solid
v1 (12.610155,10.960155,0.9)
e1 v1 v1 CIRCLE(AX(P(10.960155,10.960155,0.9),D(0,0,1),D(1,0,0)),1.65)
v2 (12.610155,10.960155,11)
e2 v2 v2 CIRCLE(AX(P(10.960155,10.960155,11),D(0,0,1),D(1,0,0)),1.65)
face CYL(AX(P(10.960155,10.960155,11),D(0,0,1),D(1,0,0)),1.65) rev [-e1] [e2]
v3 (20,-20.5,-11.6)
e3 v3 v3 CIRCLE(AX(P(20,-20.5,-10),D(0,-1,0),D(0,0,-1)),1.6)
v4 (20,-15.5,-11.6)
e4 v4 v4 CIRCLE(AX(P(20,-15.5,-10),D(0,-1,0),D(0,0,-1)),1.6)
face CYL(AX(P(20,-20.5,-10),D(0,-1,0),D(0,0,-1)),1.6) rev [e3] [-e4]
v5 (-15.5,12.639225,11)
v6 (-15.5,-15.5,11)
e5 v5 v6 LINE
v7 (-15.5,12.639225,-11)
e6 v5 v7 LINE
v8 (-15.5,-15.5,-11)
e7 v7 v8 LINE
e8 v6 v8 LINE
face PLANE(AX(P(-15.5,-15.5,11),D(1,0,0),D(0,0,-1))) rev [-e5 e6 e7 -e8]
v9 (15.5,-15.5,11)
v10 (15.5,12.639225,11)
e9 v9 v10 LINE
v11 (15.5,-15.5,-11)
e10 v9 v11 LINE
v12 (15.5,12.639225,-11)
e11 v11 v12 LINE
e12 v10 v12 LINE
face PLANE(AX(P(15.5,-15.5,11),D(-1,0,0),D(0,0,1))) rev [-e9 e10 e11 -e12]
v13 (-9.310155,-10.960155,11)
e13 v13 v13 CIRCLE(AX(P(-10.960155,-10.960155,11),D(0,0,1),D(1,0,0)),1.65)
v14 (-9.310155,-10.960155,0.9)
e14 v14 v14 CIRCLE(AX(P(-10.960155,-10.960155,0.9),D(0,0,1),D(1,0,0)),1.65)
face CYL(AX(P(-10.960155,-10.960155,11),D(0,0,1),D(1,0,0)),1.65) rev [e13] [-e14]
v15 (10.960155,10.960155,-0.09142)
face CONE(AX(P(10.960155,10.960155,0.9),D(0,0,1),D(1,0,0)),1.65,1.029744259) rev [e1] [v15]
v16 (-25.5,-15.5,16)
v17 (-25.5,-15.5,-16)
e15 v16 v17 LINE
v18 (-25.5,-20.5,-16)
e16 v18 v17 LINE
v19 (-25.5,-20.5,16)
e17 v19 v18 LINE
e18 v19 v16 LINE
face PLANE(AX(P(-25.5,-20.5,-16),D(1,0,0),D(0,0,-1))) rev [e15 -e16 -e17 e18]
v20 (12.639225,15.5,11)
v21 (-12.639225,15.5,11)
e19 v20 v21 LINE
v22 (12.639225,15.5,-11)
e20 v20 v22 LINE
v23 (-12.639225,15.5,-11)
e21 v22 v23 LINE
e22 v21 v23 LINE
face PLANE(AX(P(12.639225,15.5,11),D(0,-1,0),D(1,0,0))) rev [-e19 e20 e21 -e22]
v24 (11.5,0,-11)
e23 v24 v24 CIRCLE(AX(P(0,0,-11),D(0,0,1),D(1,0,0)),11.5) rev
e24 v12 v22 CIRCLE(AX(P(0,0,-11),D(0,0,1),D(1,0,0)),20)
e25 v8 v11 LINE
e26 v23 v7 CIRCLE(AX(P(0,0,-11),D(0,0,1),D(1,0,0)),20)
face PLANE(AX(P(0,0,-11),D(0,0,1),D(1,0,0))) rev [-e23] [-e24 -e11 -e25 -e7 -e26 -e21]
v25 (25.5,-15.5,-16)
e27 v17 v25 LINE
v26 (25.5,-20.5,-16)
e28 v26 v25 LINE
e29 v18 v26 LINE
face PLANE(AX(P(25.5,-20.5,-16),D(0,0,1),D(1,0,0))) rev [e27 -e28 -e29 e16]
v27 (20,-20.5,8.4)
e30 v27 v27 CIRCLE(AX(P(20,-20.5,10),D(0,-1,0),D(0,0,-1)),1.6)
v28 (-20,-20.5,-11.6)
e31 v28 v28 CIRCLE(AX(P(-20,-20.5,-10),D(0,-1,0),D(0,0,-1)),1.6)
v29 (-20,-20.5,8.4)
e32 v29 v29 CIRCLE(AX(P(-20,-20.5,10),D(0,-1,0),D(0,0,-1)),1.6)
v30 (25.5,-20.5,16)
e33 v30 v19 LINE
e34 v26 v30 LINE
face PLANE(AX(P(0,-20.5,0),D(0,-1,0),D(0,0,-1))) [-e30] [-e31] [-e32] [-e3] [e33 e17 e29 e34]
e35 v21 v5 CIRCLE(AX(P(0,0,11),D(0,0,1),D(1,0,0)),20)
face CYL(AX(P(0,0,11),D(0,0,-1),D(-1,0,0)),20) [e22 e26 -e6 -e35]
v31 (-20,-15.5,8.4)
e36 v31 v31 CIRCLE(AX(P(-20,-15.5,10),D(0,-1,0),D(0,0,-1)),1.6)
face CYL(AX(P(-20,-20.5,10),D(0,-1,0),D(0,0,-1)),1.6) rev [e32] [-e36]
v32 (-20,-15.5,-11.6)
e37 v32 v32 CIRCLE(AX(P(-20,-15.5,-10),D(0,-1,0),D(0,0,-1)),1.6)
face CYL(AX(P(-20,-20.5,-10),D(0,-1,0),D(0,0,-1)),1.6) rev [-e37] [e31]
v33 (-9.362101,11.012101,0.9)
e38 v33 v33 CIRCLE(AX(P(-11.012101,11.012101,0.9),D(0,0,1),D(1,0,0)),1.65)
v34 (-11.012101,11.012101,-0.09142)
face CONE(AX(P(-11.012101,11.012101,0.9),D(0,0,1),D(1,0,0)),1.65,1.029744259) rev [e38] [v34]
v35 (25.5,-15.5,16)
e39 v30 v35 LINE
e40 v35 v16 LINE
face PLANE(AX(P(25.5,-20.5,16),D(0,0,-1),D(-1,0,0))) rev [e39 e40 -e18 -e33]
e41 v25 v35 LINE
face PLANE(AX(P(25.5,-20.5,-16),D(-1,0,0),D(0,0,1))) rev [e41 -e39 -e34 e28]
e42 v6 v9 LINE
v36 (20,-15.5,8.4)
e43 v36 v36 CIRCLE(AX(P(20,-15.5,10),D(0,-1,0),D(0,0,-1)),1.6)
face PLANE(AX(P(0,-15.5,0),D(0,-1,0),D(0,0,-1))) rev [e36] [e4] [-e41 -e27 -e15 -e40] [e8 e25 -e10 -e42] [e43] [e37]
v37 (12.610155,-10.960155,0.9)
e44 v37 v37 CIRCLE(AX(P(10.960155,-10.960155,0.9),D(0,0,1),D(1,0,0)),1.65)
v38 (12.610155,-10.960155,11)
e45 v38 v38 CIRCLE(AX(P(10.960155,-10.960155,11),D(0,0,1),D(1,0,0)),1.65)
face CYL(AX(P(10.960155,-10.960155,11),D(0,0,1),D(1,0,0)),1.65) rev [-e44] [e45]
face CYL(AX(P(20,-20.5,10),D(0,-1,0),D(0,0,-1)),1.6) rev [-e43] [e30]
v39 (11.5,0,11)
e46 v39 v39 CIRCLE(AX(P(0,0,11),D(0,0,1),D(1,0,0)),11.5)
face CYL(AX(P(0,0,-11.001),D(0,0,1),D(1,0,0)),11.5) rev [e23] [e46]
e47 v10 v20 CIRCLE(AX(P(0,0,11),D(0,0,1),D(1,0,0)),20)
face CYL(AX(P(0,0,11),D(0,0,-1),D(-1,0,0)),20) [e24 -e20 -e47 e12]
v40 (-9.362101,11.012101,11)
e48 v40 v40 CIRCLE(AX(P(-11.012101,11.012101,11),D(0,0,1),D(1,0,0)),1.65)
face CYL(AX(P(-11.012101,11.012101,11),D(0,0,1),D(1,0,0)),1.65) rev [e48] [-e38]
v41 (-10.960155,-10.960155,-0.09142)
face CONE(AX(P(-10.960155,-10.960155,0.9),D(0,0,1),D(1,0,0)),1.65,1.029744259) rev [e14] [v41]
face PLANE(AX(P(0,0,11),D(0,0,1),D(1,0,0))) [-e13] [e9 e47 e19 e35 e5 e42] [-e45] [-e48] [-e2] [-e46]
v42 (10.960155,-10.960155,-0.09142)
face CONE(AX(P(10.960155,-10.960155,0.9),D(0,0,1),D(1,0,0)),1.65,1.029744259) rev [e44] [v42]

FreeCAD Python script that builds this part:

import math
import FreeCAD as App
import Part
import Sketcher
from FreeCAD import Vector

doc = App.newDocument("Part")
body = doc.addObject("PartDesign::Body", "Body")

sketch1 = body.newObject("Sketcher::SketchObject", "Sketch")
sketch1.AttachmentSupport = (doc.getObject("XY_Plane"), [""])
sketch1.MapMode = "FlatFace"
sketch1.addGeometry(Part.LineSegment(Vector(-15.5, -15.5, 0), Vector(15.5, -15.5, 0)), False)
sketch1.addGeometry(Part.LineSegment(Vector(15.5, -15.5, 0), Vector(15.5, 12.6, 0)), False)
sketch1.addGeometry(Part.ArcOfCircle(Part.Circle(Vector(0, 0, 0), Vector(0, 0, 1), 20), math.radians(39.19), math.radians(50.81)), False)
sketch1.addGeometry(Part.LineSegment(Vector(12.6, 15.5, 0), Vector(-12.6, 15.5, 0)), False)
sketch1.addGeometry(Part.ArcOfCircle(Part.Circle(Vector(0, 0, 0), Vector(0, 0, 1), 20), math.radians(129.19), math.radians(140.81)), False)
sketch1.addGeometry(Part.LineSegment(Vector(-15.5, 12.6, 0), Vector(-15.5, -15.5, 0)), False)
sketch1.addConstraint(Sketcher.Constraint("Coincident", 0, 2, 1, 1))
sketch1.addConstraint(Sketcher.Constraint("Coincident", 1, 2, 2, 1))
sketch1.addConstraint(Sketcher.Constraint("Coincident", 2, 2, 3, 1))
sketch1.addConstraint(Sketcher.Constraint("Coincident", 3, 2, 4, 1))
sketch1.addConstraint(Sketcher.Constraint("Coincident", 4, 2, 5, 1))
sketch1.addConstraint(Sketcher.Constraint("Coincident", 5, 2, 0, 1))
sketch1.addConstraint(Sketcher.Constraint("Horizontal", 0))
sketch1.addConstraint(Sketcher.Constraint("Vertical", 1))
sketch1.addConstraint(Sketcher.Constraint("Horizontal", 3))
sketch1.addConstraint(Sketcher.Constraint("Vertical", 5))
sketch1.addConstraint(Sketcher.Constraint("Coincident", 2, 3, -1, 1))
sketch1.addConstraint(Sketcher.Constraint("Coincident", 4, 3, -1, 1))
sketch1.addConstraint(Sketcher.Constraint("Equal", 2, 4))
sketch1.addConstraint(Sketcher.Constraint("Horizontal", 1, 2, 4, 2))
sketch1.addConstraint(Sketcher.Constraint("Radius", 2, 20.0))
sketch1.addConstraint(Sketcher.Constraint("DistanceX", 0, 1, 0, 2, 31.0))
sketch1.addConstraint(Sketcher.Constraint("DistanceY", 0, 2, 2, 2, 31.0))
sketch1.addConstraint(Sketcher.Constraint("DistanceY", 0, 2, -1, 1, 15.5))
pad1 = body.newObject("PartDesign::Pad", "Pad")
pad1.Profile = sketch1
pad1.Length = 22
pad1.Midplane = True

sketch2 = body.newObject("Sketcher::SketchObject", "Sketch001")
sketch2.AttachmentSupport = (doc.getObject("XY_Plane"), [""])
sketch2.MapMode = "FlatFace"
sketch2.AttachmentOffset = App.Placement(Vector(0, 0, 11), App.Rotation())
sketch2.addGeometry(Part.Circle(Vector(0, 0, 0), Vector(0, 0, 1), 12), False)
sketch2.addConstraint(Sketcher.Constraint("Coincident", 0, 3, -1, 1))
sketch2.addConstraint(Sketcher.Constraint("Diameter", 0, 23.0))
pocket1 = body.newObject("PartDesign::Pocket", "Pocket")
pocket1.Profile = sketch2
pocket1.Type = "UpToFirst"

sketch3 = body.newObject("Sketcher::SketchObject", "Sketch002")
sketch3.AttachmentSupport = (doc.getObject("XY_Plane"), [""])
sketch3.MapMode = "FlatFace"
sketch3.AttachmentOffset = App.Placement(Vector(0, 0, 11), App.Rotation())
sketch3.addGeometry(Part.Circle(Vector(-11, 11, 0), Vector(0, 0, 1), 1.6), False)
sketch3.addGeometry(Part.Circle(Vector(11, 11, 0), Vector(0, 0, 1), 1.6), False)
sketch3.addGeometry(Part.Circle(Vector(11, -11, 0), Vector(0, 0, 1), 1.6), False)
sketch3.addGeometry(Part.Circle(Vector(-11, -11, 0), Vector(0, 0, 1), 1.6), False)
sketch3.addConstraint(Sketcher.Constraint("Equal", 0, 1))
sketch3.addConstraint(Sketcher.Constraint("Equal", 1, 2))
sketch3.addConstraint(Sketcher.Constraint("Equal", 2, 3))
sketch3.addConstraint(Sketcher.Constraint("Symmetric", 1, 3, 3, 3, -1, 1))
sketch3.addConstraint(Sketcher.Constraint("Symmetric", 2, 3, 3, 3, -2))
sketch3.addConstraint(Sketcher.Constraint("Diameter", 0, 3.3))
sketch3.addConstraint(Sketcher.Constraint("DistanceX", 0, 3, -1, 1, 11.012101))
sketch3.addConstraint(Sketcher.Constraint("DistanceY", -1, 1, 0, 3, 11.012101))
sketch3.addConstraint(Sketcher.Constraint("DistanceY", 2, 3, 1, 3, 21.92031))
sketch3.addConstraint(Sketcher.Constraint("DistanceX", 3, 3, 2, 3, 21.92031))
doc.recompute()
hole = body.newObject("PartDesign::Hole", "Hole")
hole.Profile = sketch3
hole.ThreadType = "None"
hole.Diameter = 3.3
hole.DepthType = "Dimension"
hole.Depth = 10.1
hole.DrillPoint = "Angled"
hole.DrillPointAngle = 118

sketch4 = body.newObject("Sketcher::SketchObject", "Sketch003")
sketch4.AttachmentSupport = (doc.getObject("XZ_Plane"), [""])
sketch4.MapMode = "FlatFace"
sketch4.AttachmentOffset = App.Placement(Vector(0, 0, 15.5), App.Rotation())
sketch4.addGeometry(Part.LineSegment(Vector(-26, 16, 0), Vector(-26, -16, 0)), False)
sketch4.addGeometry(Part.LineSegment(Vector(-26, -16, 0), Vector(26, -16, 0)), False)
sketch4.addGeometry(Part.LineSegment(Vector(26, -16, 0), Vector(26, 16, 0)), False)
sketch4.addGeometry(Part.LineSegment(Vector(26, 16, 0), Vector(-26, 16, 0)), False)
sketch4.addConstraint(Sketcher.Constraint("Coincident", 0, 2, 1, 1))
sketch4.addConstraint(Sketcher.Constraint("Coincident", 1, 2, 2, 1))
sketch4.addConstraint(Sketcher.Constraint("Coincident", 2, 2, 3, 1))
sketch4.addConstraint(Sketcher.Constraint("Coincident", 3, 2, 0, 1))
sketch4.addConstraint(Sketcher.Constraint("Vertical", 0))
sketch4.addConstraint(Sketcher.Constraint("Horizontal", 1))
sketch4.addConstraint(Sketcher.Constraint("Vertical", 2))
sketch4.addConstraint(Sketcher.Constraint("Horizontal", 3))
sketch4.addConstraint(Sketcher.Constraint("Symmetric", 0, 2, 2, 2, -1, 1))
sketch4.addConstraint(Sketcher.Constraint("DistanceX", 1, 1, 1, 2, 51.0))
sketch4.addConstraint(Sketcher.Constraint("DistanceY", 0, 2, 0, 1, 32.0))
pad2 = body.newObject("PartDesign::Pad", "Pad001")
pad2.Profile = sketch4
pad2.Length = 5

sketch5 = body.newObject("Sketcher::SketchObject", "Sketch004")
sketch5.AttachmentSupport = (doc.getObject("XZ_Plane"), [""])
sketch5.MapMode = "FlatFace"
sketch5.AttachmentOffset = App.Placement(Vector(0, 0, 20.5), App.Rotation())
sketch5.addGeometry(Part.Circle(Vector(-20, 10, 0), Vector(0, 0, 1), 1.6), False)
sketch5.addGeometry(Part.Circle(Vector(20, 10, 0), Vector(0, 0, 1), 1.6), False)
sketch5.addGeometry(Part.Circle(Vector(20, -10, 0), Vector(0, 0, 1), 1.6), False)
sketch5.addGeometry(Part.Circle(Vector(-20, -10, 0), Vector(0, 0, 1), 1.6), False)
sketch5.addConstraint(Sketcher.Constraint("Equal", 0, 1))
sketch5.addConstraint(Sketcher.Constraint("Equal", 1, 2))
sketch5.addConstraint(Sketcher.Constraint("Equal", 2, 3))
sketch5.addConstraint(Sketcher.Constraint("Symmetric", 0, 3, 2, 3, -1, 1))
sketch5.addConstraint(Sketcher.Constraint("Symmetric", 1, 3, 3, 3, -1, 1))
sketch5.addConstraint(Sketcher.Constraint("Symmetric", 0, 3, 1, 3, -2))
sketch5.addConstraint(Sketcher.Constraint("Diameter", 0, 3.2))
sketch5.addConstraint(Sketcher.Constraint("DistanceX", 0, 3, -1, 1, 20.0))
sketch5.addConstraint(Sketcher.Constraint("DistanceY", -1, 1, 0, 3, 10.0))
doc.recompute()
hole2 = body.newObject("PartDesign::Hole", "Hole001")
hole2.Profile = sketch5
hole2.ThreadType = "None"
hole2.Diameter = 3.2
hole2.DepthType = "Dimension"
hole2.Depth = 5
hole2.DrillPoint = "Flat"

doc.recompute()
